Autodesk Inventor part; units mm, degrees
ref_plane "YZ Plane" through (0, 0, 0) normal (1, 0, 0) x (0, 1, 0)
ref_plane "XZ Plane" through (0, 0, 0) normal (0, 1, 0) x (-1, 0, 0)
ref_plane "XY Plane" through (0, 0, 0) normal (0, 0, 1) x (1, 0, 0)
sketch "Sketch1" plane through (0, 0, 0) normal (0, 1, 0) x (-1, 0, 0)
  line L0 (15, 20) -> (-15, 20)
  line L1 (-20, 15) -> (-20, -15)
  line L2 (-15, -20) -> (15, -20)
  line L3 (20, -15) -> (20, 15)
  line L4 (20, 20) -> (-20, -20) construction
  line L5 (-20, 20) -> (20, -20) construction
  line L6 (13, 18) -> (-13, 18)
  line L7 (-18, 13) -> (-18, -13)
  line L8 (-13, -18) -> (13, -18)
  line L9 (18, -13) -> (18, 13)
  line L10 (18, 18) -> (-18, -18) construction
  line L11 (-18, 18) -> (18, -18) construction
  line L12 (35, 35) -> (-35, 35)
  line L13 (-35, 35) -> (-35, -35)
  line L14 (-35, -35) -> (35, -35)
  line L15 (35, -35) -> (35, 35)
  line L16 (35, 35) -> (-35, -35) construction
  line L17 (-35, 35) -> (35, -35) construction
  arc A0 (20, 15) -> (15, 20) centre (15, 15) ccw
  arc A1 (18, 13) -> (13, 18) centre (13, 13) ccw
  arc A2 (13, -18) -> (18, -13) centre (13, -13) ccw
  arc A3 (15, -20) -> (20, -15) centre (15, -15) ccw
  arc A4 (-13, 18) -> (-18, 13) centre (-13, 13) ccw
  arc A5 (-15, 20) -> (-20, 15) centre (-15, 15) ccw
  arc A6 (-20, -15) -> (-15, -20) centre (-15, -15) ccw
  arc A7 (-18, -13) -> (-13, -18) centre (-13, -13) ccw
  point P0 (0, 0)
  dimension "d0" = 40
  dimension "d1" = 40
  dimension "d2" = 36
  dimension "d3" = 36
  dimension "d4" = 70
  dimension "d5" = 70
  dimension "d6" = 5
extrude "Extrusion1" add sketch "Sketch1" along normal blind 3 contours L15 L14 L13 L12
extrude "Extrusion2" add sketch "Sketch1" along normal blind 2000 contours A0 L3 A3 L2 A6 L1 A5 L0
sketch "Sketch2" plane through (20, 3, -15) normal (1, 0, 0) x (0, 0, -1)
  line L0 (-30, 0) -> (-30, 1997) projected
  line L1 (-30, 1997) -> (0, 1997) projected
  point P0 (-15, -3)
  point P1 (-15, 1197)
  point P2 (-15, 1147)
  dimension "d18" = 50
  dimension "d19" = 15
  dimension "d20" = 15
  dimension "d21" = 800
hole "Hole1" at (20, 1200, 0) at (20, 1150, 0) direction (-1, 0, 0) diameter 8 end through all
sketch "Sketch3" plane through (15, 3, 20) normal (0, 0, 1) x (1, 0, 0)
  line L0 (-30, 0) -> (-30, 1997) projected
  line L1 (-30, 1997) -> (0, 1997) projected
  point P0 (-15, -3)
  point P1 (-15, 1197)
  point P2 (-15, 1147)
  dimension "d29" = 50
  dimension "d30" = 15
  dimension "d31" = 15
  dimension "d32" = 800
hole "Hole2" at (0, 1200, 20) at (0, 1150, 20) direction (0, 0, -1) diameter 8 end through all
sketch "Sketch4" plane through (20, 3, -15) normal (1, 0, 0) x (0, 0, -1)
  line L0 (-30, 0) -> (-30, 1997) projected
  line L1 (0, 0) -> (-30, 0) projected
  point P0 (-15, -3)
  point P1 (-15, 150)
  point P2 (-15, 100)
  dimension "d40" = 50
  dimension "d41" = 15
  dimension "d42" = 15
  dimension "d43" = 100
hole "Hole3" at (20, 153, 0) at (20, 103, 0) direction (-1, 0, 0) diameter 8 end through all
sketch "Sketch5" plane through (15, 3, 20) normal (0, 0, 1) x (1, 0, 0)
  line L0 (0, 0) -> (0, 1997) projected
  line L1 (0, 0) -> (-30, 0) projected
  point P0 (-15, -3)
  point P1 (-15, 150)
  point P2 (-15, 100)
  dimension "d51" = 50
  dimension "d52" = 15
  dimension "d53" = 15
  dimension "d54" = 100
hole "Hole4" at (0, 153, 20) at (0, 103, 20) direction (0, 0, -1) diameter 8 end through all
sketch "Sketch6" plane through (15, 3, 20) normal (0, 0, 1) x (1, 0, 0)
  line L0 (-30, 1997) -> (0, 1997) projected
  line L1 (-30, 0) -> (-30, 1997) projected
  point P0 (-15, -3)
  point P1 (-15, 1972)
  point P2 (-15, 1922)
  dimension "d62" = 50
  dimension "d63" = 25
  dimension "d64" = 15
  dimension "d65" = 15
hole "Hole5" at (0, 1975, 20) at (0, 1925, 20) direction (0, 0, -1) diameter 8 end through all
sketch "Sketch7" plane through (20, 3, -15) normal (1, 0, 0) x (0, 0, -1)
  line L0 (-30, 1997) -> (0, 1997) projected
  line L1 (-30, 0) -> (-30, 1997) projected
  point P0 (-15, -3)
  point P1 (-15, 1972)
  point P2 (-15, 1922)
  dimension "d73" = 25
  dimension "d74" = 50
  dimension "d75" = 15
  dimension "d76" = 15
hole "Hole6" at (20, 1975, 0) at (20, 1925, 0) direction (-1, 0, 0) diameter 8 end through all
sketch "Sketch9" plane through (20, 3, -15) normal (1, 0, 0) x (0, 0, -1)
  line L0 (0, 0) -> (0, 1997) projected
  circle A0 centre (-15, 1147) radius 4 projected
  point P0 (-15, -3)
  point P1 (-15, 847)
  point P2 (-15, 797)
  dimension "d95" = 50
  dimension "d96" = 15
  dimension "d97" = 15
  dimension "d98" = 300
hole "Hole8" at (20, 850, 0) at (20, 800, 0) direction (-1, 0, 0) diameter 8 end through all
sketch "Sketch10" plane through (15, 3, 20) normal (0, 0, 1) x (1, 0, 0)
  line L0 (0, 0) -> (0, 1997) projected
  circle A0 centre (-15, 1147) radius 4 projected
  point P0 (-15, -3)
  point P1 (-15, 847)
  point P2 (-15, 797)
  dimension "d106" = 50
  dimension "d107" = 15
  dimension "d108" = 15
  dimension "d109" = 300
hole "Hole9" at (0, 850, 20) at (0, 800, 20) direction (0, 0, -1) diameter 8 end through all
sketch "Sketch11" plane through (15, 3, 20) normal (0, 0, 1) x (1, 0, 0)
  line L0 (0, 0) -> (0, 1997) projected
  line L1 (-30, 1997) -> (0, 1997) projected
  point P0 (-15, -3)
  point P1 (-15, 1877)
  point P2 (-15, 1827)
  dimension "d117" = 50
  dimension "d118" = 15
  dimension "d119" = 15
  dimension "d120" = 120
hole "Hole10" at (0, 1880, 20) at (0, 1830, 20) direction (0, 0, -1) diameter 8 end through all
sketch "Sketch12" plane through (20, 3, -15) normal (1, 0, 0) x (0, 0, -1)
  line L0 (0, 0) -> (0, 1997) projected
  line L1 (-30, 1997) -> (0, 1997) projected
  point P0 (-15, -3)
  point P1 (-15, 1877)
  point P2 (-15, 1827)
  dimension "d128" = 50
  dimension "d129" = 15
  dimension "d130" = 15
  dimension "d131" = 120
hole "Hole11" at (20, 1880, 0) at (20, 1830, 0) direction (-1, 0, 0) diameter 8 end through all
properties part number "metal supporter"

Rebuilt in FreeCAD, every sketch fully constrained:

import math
import FreeCAD as App
import Part
import Sketcher

V = App.Vector
Q = App.Units.Quantity


def add_polygon(sketch, points):
    """Adds a closed chain of lines whose ends are joined by coincident constraints."""
    first, n = sketch.GeometryCount, len(points)
    for a, b in zip(points, points[1:] + points[:1]):
        sketch.addGeometry(Part.LineSegment(App.Vector(*a, 0), App.Vector(*b, 0)), False)
    for i in range(n):
        sketch.addConstraint(Sketcher.Constraint("Coincident", first + i, 2, first + (i + 1) % n, 1))

doc = App.newDocument("Part")
body = doc.addObject("PartDesign::Body", "Body")

sketch1 = body.newObject("Sketcher::SketchObject", "Sketch")
sketch1.AttachmentSupport = (doc.getObject("XZ_Plane"), [""])
sketch1.MapMode = "FlatFace"
add_polygon(sketch1, [(-35, -35), (-35, 35), (35, 35), (35, -35)])
sketch1.addGeometry(Part.LineSegment(V(15, 20, 0), V(-15, 20, 0)), False)
sketch1.addGeometry(Part.ArcOfCircle(Part.Circle(V(-15, 15, 0), V(0, 0, 1), 5), math.radians(90), math.radians(180)), False)
sketch1.addGeometry(Part.LineSegment(V(-20, 15, 0), V(-20, -15, 0)), False)
sketch1.addGeometry(Part.ArcOfCircle(Part.Circle(V(-15, -15, 0), V(0, 0, 1), 5), math.radians(180), math.radians(270)), False)
sketch1.addGeometry(Part.LineSegment(V(-15, -20, 0), V(15, -20, 0)), False)
sketch1.addGeometry(Part.ArcOfCircle(Part.Circle(V(15, -15, 0), V(0, 0, 1), 5), math.radians(-90), math.radians(0)), False)
sketch1.addGeometry(Part.LineSegment(V(20, -15, 0), V(20, 15, 0)), False)
sketch1.addGeometry(Part.ArcOfCircle(Part.Circle(V(15, 15, 0), V(0, 0, 1), 5), math.radians(0), math.radians(90)), False)
sketch1.addConstraint([
    Sketcher.Constraint("Tangent", 4, 2, 5, 1),
    Sketcher.Constraint("Tangent", 5, 2, 6, 1),
    Sketcher.Constraint("Tangent", 6, 2, 7, 1),
    Sketcher.Constraint("Tangent", 7, 2, 8, 1),
    Sketcher.Constraint("Tangent", 8, 2, 9, 1),
    Sketcher.Constraint("Tangent", 9, 2, 10, 1),
    Sketcher.Constraint("Tangent", 10, 2, 11, 1),
    Sketcher.Constraint("Tangent", 11, 2, 4, 1),
    Sketcher.Constraint("Vertical", 0),
    Sketcher.Constraint("Horizontal", 1),
    Sketcher.Constraint("Vertical", 2),
    Sketcher.Constraint("Horizontal", 3),
    Sketcher.Constraint("Horizontal", 4),
    Sketcher.Constraint("Vertical", 6),
    Sketcher.Constraint("Horizontal", 8),
    Sketcher.Constraint("Vertical", 10),
    Sketcher.Constraint("Equal", 5, 7),
    Sketcher.Constraint("Equal", 7, 9),
    Sketcher.Constraint("Equal", 9, 11),
    Sketcher.Constraint("Symmetric", 5, 3, 9, 3, -1, 1),
    Sketcher.Constraint("Symmetric", 0, 2, 2, 2, -1, 1),
    Sketcher.Constraint("Equal", 3, 0),
    Sketcher.Constraint("Equal", 8, 6),
    Sketcher.Constraint("Radius", 5, Q("5 mm")),
    Sketcher.Constraint("DistanceX", 1, 1, 1, 2, Q("70 mm")),
    Sketcher.Constraint("DistanceX", 4, 2, 4, 1, Q("30 mm")),
])
pad1 = body.newObject("PartDesign::Pad", "Pad")
pad1.Profile = sketch1
pad1.Length = 3
pad1.Reversed = True

sketch2 = body.newObject("Sketcher::SketchObject", "Sketch001")
sketch2.AttachmentSupport = (doc.getObject("XZ_Plane"), [""])
sketch2.MapMode = "FlatFace"
sketch2.addGeometry([
    Part.ArcOfCircle(Part.Circle(V(-15, 15, 0), V(0, 0, 1), 5), math.radians(90), math.radians(180)),
    Part.LineSegment(V(-15, 20, 0), V(15, 20, 0)),
    Part.ArcOfCircle(Part.Circle(V(15, 15, 0), V(0, 0, 1), 5), math.radians(0), math.radians(90)),
    Part.LineSegment(V(20, 15, 0), V(20, -15, 0)),
    Part.ArcOfCircle(Part.Circle(V(15, -15, 0), V(0, 0, 1), 5), math.radians(-90), math.radians(0)),
    Part.LineSegment(V(15, -20, 0), V(-15, -20, 0)),
    Part.ArcOfCircle(Part.Circle(V(-15, -15, 0), V(0, 0, 1), 5), math.radians(180), math.radians(270)),
    Part.LineSegment(V(-20, -15, 0), V(-20, 15, 0)),
    Part.LineSegment(V(13, 18, 0), V(-13, 18, 0)),
    Part.ArcOfCircle(Part.Circle(V(-13, 13, 0), V(0, 0, 1), 5), math.radians(90), math.radians(180)),
    Part.LineSegment(V(-18, 13, 0), V(-18, -13, 0)),
    Part.ArcOfCircle(Part.Circle(V(-13, -13, 0), V(0, 0, 1), 5), math.radians(180), math.radians(270)),
    Part.LineSegment(V(-13, -18, 0), V(13, -18, 0)),
    Part.ArcOfCircle(Part.Circle(V(13, -13, 0), V(0, 0, 1), 5), math.radians(-90), math.radians(0)),
    Part.LineSegment(V(18, -13, 0), V(18, 13, 0)),
    Part.ArcOfCircle(Part.Circle(V(13, 13, 0), V(0, 0, 1), 5), math.radians(0), math.radians(90)),
], False)
sketch2.addConstraint([
    Sketcher.Constraint("Tangent", 0, 1, 1, 1),
    Sketcher.Constraint("Tangent", 1, 2, 2, 2),
    Sketcher.Constraint("Tangent", 2, 1, 3, 1),
    Sketcher.Constraint("Tangent", 3, 2, 4, 2),
    Sketcher.Constraint("Tangent", 4, 1, 5, 1),
    Sketcher.Constraint("Tangent", 5, 2, 6, 2),
    Sketcher.Constraint("Tangent", 6, 1, 7, 1),
    Sketcher.Constraint("Tangent", 7, 2, 0, 2),
    Sketcher.Constraint("Tangent", 8, 2, 9, 1),
    Sketcher.Constraint("Tangent", 9, 2, 10, 1),
    Sketcher.Constraint("Tangent", 10, 2, 11, 1),
    Sketcher.Constraint("Tangent", 11, 2, 12, 1),
    Sketcher.Constraint("Tangent", 12, 2, 13, 1),
    Sketcher.Constraint("Tangent", 13, 2, 14, 1),
    Sketcher.Constraint("Tangent", 14, 2, 15, 1),
    Sketcher.Constraint("Tangent", 15, 2, 8, 1),
    Sketcher.Constraint("Horizontal", 1),
    Sketcher.Constraint("Vertical", 3),
    Sketcher.Constraint("Horizontal", 5),
    Sketcher.Constraint("Vertical", 7),
    Sketcher.Constraint("Horizontal", 8),
    Sketcher.Constraint("Vertical", 10),
    Sketcher.Constraint("Horizontal", 12),
    Sketcher.Constraint("Vertical", 14),
    Sketcher.Constraint("Equal", 0, 2),
    Sketcher.Constraint("Equal", 2, 4),
    Sketcher.Constraint("Equal", 4, 6),
    Sketcher.Constraint("Equal", 6, 9),
    Sketcher.Constraint("Equal", 9, 11),
    Sketcher.Constraint("Equal", 11, 13),
    Sketcher.Constraint("Equal", 13, 15),
    Sketcher.Constraint("Symmetric", 0, 3, 4, 3, -1, 1),
    Sketcher.Constraint("Symmetric", 9, 3, 13, 3, -1, 1),
    Sketcher.Constraint("Equal", 5, 3),
    Sketcher.Constraint("Equal", 12, 10),
    Sketcher.Constraint("Radius", 0, Q("5 mm")),
    Sketcher.Constraint("DistanceX", 1, 1, 1, 2, Q("30 mm")),
    Sketcher.Constraint("DistanceX", 8, 2, 8, 1, Q("26 mm")),
])
pad2 = body.newObject("PartDesign::Pad", "Pad001")
pad2.Profile = sketch2
pad2.Length = 2000
pad2.Reversed = True

sketch3 = body.newObject("Sketcher::SketchObject", "Sketch002")
sketch3.AttachmentSupport = (doc.getObject("YZ_Plane"), [""])
sketch3.MapMode = "FlatFace"
sketch3.AttachmentOffset = App.Placement(V(0, 0, 20), App.Rotation())
sketch3.addGeometry([
    Part.Circle(V(1200, 0, 0), V(0, 0, 1), 4),
    Part.Circle(V(1150, 0, 0), V(0, 0, 1), 4),
], False)
sketch3.addConstraint([
    Sketcher.Constraint("Equal", 0, 1),
    Sketcher.Constraint("PointOnObject", 0, 3, -1),
    Sketcher.Constraint("PointOnObject", 1, 3, -1),
    Sketcher.Constraint("Diameter", 0, Q("8 mm")),
    Sketcher.Constraint("DistanceX", -1, 1, 0, 3, Q("1200 mm")),
    Sketcher.Constraint("DistanceX", -1, 1, 1, 3, Q("1150 mm")),
])
doc.recompute()
hole = body.newObject("PartDesign::Hole", "Hole")
hole.Profile = sketch3
hole.ThreadType = "None"
hole.Diameter = 8
hole.DepthType = "ThroughAll"

sketch4 = body.newObject("Sketcher::SketchObject", "Sketch003")
sketch4.AttachmentSupport = (doc.getObject("XY_Plane"), [""])
sketch4.MapMode = "FlatFace"
sketch4.AttachmentOffset = App.Placement(V(0, 0, 20), App.Rotation())
sketch4.addGeometry([
    Part.Circle(V(0, 1200, 0), V(0, 0, 1), 4),
    Part.Circle(V(0, 1150, 0), V(0, 0, 1), 4),
], False)
sketch4.addConstraint([
    Sketcher.Constraint("Equal", 0, 1),
    Sketcher.Constraint("PointOnObject", 0, 3, -2),
    Sketcher.Constraint("PointOnObject", 1, 3, -2),
    Sketcher.Constraint("Diameter", 0, Q("8 mm")),
    Sketcher.Constraint("DistanceY", -1, 1, 0, 3, Q("1200 mm")),
    Sketcher.Constraint("DistanceY", -1, 1, 1, 3, Q("1150 mm")),
])
doc.recompute()
hole2 = body.newObject("PartDesign::Hole", "Hole001")
hole2.Profile = sketch4
hole2.ThreadType = "None"
hole2.Diameter = 8
hole2.DepthType = "ThroughAll"

sketch5 = body.newObject("Sketcher::SketchObject", "Sketch004")
sketch5.AttachmentSupport = (doc.getObject("YZ_Plane"), [""])
sketch5.MapMode = "FlatFace"
sketch5.AttachmentOffset = App.Placement(V(0, 0, 20), App.Rotation())
sketch5.addGeometry([
    Part.Circle(V(153, 0, 0), V(0, 0, 1), 4),
    Part.Circle(V(103, 0, 0), V(0, 0, 1), 4),
], False)
sketch5.addConstraint([
    Sketcher.Constraint("Equal", 0, 1),
    Sketcher.Constraint("PointOnObject", 0, 3, -1),
    Sketcher.Constraint("PointOnObject", 1, 3, -1),
    Sketcher.Constraint("Diameter", 0, Q("8 mm")),
    Sketcher.Constraint("DistanceX", -1, 1, 0, 3, Q("153 mm")),
    Sketcher.Constraint("DistanceX", -1, 1, 1, 3, Q("103 mm")),
])
doc.recompute()
hole3 = body.newObject("PartDesign::Hole", "Hole002")
hole3.Profile = sketch5
hole3.ThreadType = "None"
hole3.Diameter = 8
hole3.DepthType = "ThroughAll"

sketch6 = body.newObject("Sketcher::SketchObject", "Sketch005")
sketch6.AttachmentSupport = (doc.getObject("XY_Plane"), [""])
sketch6.MapMode = "FlatFace"
sketch6.AttachmentOffset = App.Placement(V(0, 0, 20), App.Rotation())
sketch6.addGeometry([
    Part.Circle(V(0, 153, 0), V(0, 0, 1), 4),
    Part.Circle(V(0, 103, 0), V(0, 0, 1), 4),
], False)
sketch6.addConstraint([
    Sketcher.Constraint("Equal", 0, 1),
    Sketcher.Constraint("PointOnObject", 0, 3, -2),
    Sketcher.Constraint("PointOnObject", 1, 3, -2),
    Sketcher.Constraint("Diameter", 0, Q("8 mm")),
    Sketcher.Constraint("DistanceY", -1, 1, 0, 3, Q("153 mm")),
    Sketcher.Constraint("DistanceY", -1, 1, 1, 3, Q("103 mm")),
])
doc.recompute()
hole4 = body.newObject("PartDesign::Hole", "Hole003")
hole4.Profile = sketch6
hole4.ThreadType = "None"
hole4.Diameter = 8
hole4.DepthType = "ThroughAll"

sketch7 = body.newObject("Sketcher::SketchObject", "Sketch006")
sketch7.AttachmentSupport = (doc.getObject("XY_Plane"), [""])
sketch7.MapMode = "FlatFace"
sketch7.AttachmentOffset = App.Placement(V(0, 0, 20), App.Rotation())
sketch7.addGeometry([
    Part.Circle(V(0, 1975, 0), V(0, 0, 1), 4),
    Part.Circle(V(0, 1925, 0), V(0, 0, 1), 4),
], False)
sketch7.addConstraint([
    Sketcher.Constraint("Equal", 0, 1),
    Sketcher.Constraint("PointOnObject", 0, 3, -2),
    Sketcher.Constraint("PointOnObject", 1, 3, -2),
    Sketcher.Constraint("Diameter", 0, Q("8 mm")),
    Sketcher.Constraint("DistanceY", -1, 1, 0, 3, Q("1975 mm")),
    Sketcher.Constraint("DistanceY", -1, 1, 1, 3, Q("1925 mm")),
])
doc.recompute()
hole5 = body.newObject("PartDesign::Hole", "Hole004")
hole5.Profile = sketch7
hole5.ThreadType = "None"
hole5.Diameter = 8
hole5.DepthType = "ThroughAll"

sketch8 = body.newObject("Sketcher::SketchObject", "Sketch007")
sketch8.AttachmentSupport = (doc.getObject("YZ_Plane"), [""])
sketch8.MapMode = "FlatFace"
sketch8.AttachmentOffset = App.Placement(V(0, 0, 20), App.Rotation())
sketch8.addGeometry([
    Part.Circle(V(1975, 0, 0), V(0, 0, 1), 4),
    Part.Circle(V(1925, 0, 0), V(0, 0, 1), 4),
], False)
sketch8.addConstraint([
    Sketcher.Constraint("Equal", 0, 1),
    Sketcher.Constraint("PointOnObject", 0, 3, -1),
    Sketcher.Constraint("PointOnObject", 1, 3, -1),
    Sketcher.Constraint("Diameter", 0, Q("8 mm")),
    Sketcher.Constraint("DistanceX", -1, 1, 0, 3, Q("1975 mm")),
    Sketcher.Constraint("DistanceX", -1, 1, 1, 3, Q("1925 mm")),
])
doc.recompute()
hole6 = body.newObject("PartDesign::Hole", "Hole005")
hole6.Profile = sketch8
hole6.ThreadType = "None"
hole6.Diameter = 8
hole6.DepthType = "ThroughAll"

sketch9 = body.newObject("Sketcher::SketchObject", "Sketch008")
sketch9.AttachmentSupport = (doc.getObject("YZ_Plane"), [""])
sketch9.MapMode = "FlatFace"
sketch9.AttachmentOffset = App.Placement(V(0, 0, 20), App.Rotation())
sketch9.addGeometry([
    Part.Circle(V(850, 0, 0), V(0, 0, 1), 4),
    Part.Circle(V(800, 0, 0), V(0, 0, 1), 4),
], False)
sketch9.addConstraint([
    Sketcher.Constraint("Equal", 0, 1),
    Sketcher.Constraint("PointOnObject", 0, 3, -1),
    Sketcher.Constraint("PointOnObject", 1, 3, -1),
    Sketcher.Constraint("Diameter", 0, Q("8 mm")),
    Sketcher.Constraint("DistanceX", -1, 1, 0, 3, Q("850 mm")),
    Sketcher.Constraint("DistanceX", -1, 1, 1, 3, Q("800 mm")),
])
doc.recompute()
hole7 = body.newObject("PartDesign::Hole", "Hole006")
hole7.Profile = sketch9
hole7.ThreadType = "None"
hole7.Diameter = 8
hole7.DepthType = "ThroughAll"

sketch10 = body.newObject("Sketcher::SketchObject", "Sketch009")
sketch10.AttachmentSupport = (doc.getObject("XY_Plane"), [""])
sketch10.MapMode = "FlatFace"
sketch10.AttachmentOffset = App.Placement(V(0, 0, 20), App.Rotation())
sketch10.addGeometry([
    Part.Circle(V(0, 850, 0), V(0, 0, 1), 4),
    Part.Circle(V(0, 800, 0), V(0, 0, 1), 4),
], False)
sketch10.addConstraint([
    Sketcher.Constraint("Equal", 0, 1),
    Sketcher.Constraint("PointOnObject", 0, 3, -2),
    Sketcher.Constraint("PointOnObject", 1, 3, -2),
    Sketcher.Constraint("Diameter", 0, Q("8 mm")),
    Sketcher.Constraint("DistanceY", -1, 1, 0, 3, Q("850 mm")),
    Sketcher.Constraint("DistanceY", -1, 1, 1, 3, Q("800 mm")),
])
doc.recompute()
hole8 = body.newObject("PartDesign::Hole", "Hole007")
hole8.Profile = sketch10
hole8.ThreadType = "None"
hole8.Diameter = 8
hole8.DepthType = "ThroughAll"

sketch11 = body.newObject("Sketcher::SketchObject", "Sketch010")
sketch11.AttachmentSupport = (doc.getObject("XY_Plane"), [""])
sketch11.MapMode = "FlatFace"
sketch11.AttachmentOffset = App.Placement(V(0, 0, 20), App.Rotation())
sketch11.addGeometry([
    Part.Circle(V(0, 1880, 0), V(0, 0, 1), 4),
    Part.Circle(V(0, 1830, 0), V(0, 0, 1), 4),
], False)
sketch11.addConstraint([
    Sketcher.Constraint("Equal", 0, 1),
    Sketcher.Constraint("PointOnObject", 0, 3, -2),
    Sketcher.Constraint("PointOnObject", 1, 3, -2),
    Sketcher.Constraint("Diameter", 0, Q("8 mm")),
    Sketcher.Constraint("DistanceY", -1, 1, 0, 3, Q("1880 mm")),
    Sketcher.Constraint("DistanceY", -1, 1, 1, 3, Q("1830 mm")),
])
doc.recompute()
hole9 = body.newObject("PartDesign::Hole", "Hole008")
hole9.Profile = sketch11
hole9.ThreadType = "None"
hole9.Diameter = 8
hole9.DepthType = "ThroughAll"

sketch12 = body.newObject("Sketcher::SketchObject", "Sketch011")
sketch12.AttachmentSupport = (doc.getObject("YZ_Plane"), [""])
sketch12.MapMode = "FlatFace"
sketch12.AttachmentOffset = App.Placement(V(0, 0, 20), App.Rotation())
sketch12.addGeometry([
    Part.Circle(V(1880, 0, 0), V(0, 0, 1), 4),
    Part.Circle(V(1830, 0, 0), V(0, 0, 1), 4),
], False)
sketch12.addConstraint([
    Sketcher.Constraint("Equal", 0, 1),
    Sketcher.Constraint("PointOnObject", 0, 3, -1),
    Sketcher.Constraint("PointOnObject", 1, 3, -1),
    Sketcher.Constraint("Diameter", 0, Q("8 mm")),
    Sketcher.Constraint("DistanceX", -1, 1, 0, 3, Q("1880 mm")),
    Sketcher.Constraint("DistanceX", -1, 1, 1, 3, Q("1830 mm")),
])
doc.recompute()
hole10 = body.newObject("PartDesign::Hole", "Hole009")
hole10.Profile = sketch12
hole10.ThreadType = "None"
hole10.Diameter = 8
hole10.DepthType = "ThroughAll"

doc.recompute()
